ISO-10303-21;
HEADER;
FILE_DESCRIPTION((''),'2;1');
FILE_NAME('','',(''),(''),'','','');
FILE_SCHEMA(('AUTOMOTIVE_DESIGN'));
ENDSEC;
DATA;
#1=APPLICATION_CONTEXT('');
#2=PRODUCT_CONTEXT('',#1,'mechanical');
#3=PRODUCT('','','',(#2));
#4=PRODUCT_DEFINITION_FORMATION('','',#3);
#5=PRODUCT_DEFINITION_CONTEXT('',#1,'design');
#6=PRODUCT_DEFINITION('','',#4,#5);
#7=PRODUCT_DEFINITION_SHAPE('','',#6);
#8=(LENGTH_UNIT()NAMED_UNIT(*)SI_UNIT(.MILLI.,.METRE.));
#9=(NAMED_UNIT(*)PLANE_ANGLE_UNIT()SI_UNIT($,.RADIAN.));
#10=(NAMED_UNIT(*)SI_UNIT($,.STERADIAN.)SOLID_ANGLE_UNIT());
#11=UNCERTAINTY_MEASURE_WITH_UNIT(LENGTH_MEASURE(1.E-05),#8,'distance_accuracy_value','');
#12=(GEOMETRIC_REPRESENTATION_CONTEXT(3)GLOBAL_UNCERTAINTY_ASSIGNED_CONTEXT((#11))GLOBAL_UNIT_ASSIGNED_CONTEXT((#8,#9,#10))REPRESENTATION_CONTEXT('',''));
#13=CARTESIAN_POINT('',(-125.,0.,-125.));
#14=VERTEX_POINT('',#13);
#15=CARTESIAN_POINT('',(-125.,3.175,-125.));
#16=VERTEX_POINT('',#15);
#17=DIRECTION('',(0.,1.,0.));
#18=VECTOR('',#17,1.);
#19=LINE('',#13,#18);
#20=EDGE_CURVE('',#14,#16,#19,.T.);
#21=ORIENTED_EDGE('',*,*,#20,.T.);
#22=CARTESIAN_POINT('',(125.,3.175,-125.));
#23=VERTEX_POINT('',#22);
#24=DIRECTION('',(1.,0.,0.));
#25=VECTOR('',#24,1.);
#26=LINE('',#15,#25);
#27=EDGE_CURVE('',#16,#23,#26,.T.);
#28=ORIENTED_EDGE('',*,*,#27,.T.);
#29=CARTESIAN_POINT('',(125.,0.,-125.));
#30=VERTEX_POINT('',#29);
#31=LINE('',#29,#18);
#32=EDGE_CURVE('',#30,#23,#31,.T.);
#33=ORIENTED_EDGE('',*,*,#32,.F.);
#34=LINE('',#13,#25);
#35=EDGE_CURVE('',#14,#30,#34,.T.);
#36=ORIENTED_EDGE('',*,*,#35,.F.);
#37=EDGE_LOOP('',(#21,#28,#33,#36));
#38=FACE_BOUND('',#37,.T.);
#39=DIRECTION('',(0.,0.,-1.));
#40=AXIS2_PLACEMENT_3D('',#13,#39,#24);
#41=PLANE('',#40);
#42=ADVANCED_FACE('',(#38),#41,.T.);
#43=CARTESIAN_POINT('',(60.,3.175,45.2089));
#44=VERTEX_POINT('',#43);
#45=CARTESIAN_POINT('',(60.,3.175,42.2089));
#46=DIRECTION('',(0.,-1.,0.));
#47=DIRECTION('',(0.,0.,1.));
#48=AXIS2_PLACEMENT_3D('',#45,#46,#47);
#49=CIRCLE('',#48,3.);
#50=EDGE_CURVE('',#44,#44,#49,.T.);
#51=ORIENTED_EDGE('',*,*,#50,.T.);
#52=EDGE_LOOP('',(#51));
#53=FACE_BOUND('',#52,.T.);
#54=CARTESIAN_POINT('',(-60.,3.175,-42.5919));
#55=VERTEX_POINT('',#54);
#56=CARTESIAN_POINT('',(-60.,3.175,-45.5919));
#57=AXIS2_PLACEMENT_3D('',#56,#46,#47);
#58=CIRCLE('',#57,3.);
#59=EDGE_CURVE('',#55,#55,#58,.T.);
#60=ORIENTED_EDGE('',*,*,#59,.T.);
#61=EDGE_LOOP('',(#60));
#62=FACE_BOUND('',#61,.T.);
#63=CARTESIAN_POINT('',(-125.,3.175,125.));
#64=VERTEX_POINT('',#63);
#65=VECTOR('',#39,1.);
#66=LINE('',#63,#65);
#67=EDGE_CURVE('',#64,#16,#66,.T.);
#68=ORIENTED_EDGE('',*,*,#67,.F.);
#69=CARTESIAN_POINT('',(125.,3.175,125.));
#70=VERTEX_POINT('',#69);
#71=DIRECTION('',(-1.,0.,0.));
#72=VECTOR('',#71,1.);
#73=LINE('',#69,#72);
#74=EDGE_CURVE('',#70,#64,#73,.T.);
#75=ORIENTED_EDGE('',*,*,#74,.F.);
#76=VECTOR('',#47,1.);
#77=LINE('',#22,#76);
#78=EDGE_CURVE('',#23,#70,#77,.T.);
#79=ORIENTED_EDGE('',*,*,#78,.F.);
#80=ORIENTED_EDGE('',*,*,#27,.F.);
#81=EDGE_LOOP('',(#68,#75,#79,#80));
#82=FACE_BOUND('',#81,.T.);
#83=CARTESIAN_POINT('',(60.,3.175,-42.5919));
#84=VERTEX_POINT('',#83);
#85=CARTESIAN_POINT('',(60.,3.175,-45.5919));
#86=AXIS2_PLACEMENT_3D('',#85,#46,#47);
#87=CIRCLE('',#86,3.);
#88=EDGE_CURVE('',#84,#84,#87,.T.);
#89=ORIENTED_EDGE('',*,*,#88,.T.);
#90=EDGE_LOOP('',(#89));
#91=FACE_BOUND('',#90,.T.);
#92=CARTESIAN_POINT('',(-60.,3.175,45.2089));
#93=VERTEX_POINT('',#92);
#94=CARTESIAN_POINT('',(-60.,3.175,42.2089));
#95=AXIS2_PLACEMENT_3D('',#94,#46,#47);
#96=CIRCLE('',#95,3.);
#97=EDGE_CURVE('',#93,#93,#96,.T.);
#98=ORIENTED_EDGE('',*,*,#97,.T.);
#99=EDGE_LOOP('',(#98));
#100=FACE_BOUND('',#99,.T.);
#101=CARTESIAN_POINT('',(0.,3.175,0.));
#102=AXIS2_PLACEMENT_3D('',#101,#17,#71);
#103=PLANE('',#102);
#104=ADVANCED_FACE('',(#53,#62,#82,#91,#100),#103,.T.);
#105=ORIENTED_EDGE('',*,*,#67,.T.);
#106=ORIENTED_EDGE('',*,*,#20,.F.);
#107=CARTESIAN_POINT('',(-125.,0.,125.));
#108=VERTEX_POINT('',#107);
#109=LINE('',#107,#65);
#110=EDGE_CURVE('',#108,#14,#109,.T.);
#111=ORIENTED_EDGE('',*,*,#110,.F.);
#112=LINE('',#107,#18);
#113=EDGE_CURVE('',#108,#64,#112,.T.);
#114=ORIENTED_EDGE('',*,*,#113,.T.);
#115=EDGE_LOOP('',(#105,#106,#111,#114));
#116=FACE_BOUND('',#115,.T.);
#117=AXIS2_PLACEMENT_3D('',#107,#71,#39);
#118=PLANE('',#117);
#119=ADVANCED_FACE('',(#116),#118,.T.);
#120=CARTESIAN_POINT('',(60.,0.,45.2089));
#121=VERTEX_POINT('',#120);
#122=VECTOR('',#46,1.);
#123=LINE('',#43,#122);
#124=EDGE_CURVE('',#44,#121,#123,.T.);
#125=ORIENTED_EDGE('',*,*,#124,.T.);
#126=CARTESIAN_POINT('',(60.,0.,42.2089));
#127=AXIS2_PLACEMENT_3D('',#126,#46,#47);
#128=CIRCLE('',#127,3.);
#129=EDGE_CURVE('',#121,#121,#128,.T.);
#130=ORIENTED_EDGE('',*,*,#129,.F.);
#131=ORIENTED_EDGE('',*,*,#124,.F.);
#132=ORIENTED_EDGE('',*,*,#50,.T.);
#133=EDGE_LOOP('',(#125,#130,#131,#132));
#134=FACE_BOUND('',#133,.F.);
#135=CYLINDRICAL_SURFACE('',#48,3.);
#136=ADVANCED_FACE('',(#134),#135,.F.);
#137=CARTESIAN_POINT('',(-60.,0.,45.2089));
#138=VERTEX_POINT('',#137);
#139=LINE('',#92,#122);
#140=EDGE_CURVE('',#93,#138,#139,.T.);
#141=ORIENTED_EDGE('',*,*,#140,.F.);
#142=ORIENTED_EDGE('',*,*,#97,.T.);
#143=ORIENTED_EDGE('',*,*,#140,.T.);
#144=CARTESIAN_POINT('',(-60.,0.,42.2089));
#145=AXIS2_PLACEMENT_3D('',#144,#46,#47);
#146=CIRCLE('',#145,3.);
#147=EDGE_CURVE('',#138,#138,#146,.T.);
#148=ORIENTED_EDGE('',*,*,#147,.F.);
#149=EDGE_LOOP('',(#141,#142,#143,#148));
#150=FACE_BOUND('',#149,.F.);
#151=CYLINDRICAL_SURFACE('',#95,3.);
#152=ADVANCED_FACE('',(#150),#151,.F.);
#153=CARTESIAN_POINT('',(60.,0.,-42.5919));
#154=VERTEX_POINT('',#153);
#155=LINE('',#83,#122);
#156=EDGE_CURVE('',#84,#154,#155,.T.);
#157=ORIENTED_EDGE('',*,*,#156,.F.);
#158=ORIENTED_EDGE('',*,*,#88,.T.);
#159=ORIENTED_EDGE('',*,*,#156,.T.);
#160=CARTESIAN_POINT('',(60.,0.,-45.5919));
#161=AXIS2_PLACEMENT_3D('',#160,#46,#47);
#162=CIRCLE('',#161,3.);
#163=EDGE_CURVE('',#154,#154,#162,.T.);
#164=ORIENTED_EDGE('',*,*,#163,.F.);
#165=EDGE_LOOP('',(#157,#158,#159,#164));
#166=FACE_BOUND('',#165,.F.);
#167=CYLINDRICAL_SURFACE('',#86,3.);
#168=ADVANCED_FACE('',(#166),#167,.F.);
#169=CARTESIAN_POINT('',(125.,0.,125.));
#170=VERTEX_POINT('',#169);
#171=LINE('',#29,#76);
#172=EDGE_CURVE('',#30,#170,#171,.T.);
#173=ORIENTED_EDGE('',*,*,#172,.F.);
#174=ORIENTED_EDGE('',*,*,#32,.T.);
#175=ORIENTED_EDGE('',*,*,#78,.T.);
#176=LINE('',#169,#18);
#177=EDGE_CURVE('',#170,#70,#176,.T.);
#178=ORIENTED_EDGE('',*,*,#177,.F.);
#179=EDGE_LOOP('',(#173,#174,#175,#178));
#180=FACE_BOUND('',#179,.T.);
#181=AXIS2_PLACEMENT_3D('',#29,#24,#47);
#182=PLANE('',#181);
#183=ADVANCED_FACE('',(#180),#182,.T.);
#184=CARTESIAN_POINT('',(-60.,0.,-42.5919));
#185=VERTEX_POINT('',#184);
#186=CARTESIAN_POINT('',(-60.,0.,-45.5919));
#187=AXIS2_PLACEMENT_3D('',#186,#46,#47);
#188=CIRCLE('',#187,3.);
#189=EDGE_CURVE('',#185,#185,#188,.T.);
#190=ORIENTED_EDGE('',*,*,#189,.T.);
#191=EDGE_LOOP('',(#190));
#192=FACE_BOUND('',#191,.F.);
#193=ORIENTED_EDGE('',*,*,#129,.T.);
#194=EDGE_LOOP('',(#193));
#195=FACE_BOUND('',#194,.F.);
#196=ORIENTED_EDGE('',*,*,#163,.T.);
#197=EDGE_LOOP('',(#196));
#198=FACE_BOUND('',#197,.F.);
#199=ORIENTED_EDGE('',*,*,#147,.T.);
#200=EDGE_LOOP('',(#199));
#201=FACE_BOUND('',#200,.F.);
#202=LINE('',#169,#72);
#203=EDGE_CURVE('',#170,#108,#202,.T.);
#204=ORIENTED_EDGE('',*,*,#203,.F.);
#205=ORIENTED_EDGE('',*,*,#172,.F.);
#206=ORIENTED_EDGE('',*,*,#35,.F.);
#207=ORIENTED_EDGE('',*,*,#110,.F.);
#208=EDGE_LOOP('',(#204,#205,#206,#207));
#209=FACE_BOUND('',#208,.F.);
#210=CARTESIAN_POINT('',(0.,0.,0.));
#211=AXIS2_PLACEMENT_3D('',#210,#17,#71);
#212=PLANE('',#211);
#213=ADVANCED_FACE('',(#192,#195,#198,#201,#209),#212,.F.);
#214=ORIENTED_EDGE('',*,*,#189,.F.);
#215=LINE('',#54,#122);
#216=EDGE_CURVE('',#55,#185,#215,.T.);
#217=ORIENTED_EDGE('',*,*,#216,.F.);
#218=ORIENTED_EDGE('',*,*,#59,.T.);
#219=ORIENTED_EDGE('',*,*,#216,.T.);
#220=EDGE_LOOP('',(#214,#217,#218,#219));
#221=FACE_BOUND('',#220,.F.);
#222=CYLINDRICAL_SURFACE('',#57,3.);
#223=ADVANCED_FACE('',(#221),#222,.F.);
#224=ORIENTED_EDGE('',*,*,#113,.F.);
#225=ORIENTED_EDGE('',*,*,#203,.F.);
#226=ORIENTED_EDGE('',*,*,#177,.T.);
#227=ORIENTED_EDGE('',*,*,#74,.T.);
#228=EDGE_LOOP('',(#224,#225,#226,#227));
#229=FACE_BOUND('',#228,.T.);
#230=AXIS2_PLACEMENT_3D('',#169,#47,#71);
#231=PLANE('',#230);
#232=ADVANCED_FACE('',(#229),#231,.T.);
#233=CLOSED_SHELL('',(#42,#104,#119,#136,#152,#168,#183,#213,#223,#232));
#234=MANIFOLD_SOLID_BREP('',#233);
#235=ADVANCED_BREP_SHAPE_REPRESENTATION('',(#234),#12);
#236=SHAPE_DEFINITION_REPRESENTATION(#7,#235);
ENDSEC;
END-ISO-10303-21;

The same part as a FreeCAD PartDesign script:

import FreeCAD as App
import Part
import Sketcher

V = App.Vector

doc = App.newDocument("Part")
params = doc.addObject("Spreadsheet::Sheet", "Params")
for row, (alias, value) in enumerate([
    ("sketch1_width", "250 mm"),
    ("pad1_length", "3.175 mm"),
    ("sketch2_diameter", "6 mm"),
    ("hole_diameter", "6 mm"),
], start=1):
    params.set(f"A{row}", alias)
    params.set(f"B{row}", "=" + value)
    params.setAlias(f"B{row}", alias)

body = doc.addObject("PartDesign::Body", "Body")

# Sketch on XZ plane
sketch1 = doc.addObject("Sketcher::SketchObject", "Sketch")
body.addObject(sketch1)
sketch1.AttachmentSupport = (doc.XZ_Plane, [""])
sketch1.MapMode = "FlatFace"
sketch1.addGeometry([
    Part.LineSegment(V(-125, 125, 0), V(125, 125, 0)),
    Part.LineSegment(V(125, 125, 0), V(125, -125, 0)),
    Part.LineSegment(V(125, -125, 0), V(-125, -125, 0)),
    Part.LineSegment(V(-125, -125, 0), V(-125, 125, 0)),
], False)
sketch1.addConstraint([
    Sketcher.Constraint("Coincident", 0, 2, 1, 1),
    Sketcher.Constraint("Coincident", 1, 2, 2, 1),
    Sketcher.Constraint("Coincident", 2, 2, 3, 1),
    Sketcher.Constraint("Coincident", 3, 2, 0, 1),
    Sketcher.Constraint("Horizontal", 0),
    Sketcher.Constraint("Vertical", 1),
    Sketcher.Constraint("Horizontal", 2),
    Sketcher.Constraint("Vertical", 3),
    Sketcher.Constraint("Symmetric", 0, 2, 2, 2, -1, 1),
    Sketcher.Constraint("Equal", 2, 1),
    Sketcher.Constraint("DistanceX", 0, 1, 0, 2, 250.0),
])
sketch1.setExpression("Constraints[10]", "Params.sketch1_width")
pad1 = doc.addObject("PartDesign::Pad", "Pad")
body.addObject(pad1)
pad1.Profile = sketch1
pad1.setExpression("Length", "Params.pad1_length")
pad1.Reversed = True

# Sketch on XZ plane
sketch2 = doc.addObject("Sketcher::SketchObject", "Sketch001")
body.addObject(sketch2)
sketch2.AttachmentSupport = (doc.XZ_Plane, [""])
sketch2.MapMode = "FlatFace"
sketch2.AttachmentOffset = App.Placement(V(0, 0, -3.175), App.Rotation())
sketch2.addGeometry([
    Part.Circle(V(60, -45.6, 0), V(0, 0, 1), 3),
    Part.Circle(V(-60, -45.6, 0), V(0, 0, 1), 3),
    Part.Circle(V(60, 42.2, 0), V(0, 0, 1), 3),
    Part.Circle(V(-60, 42.2, 0), V(0, 0, 1), 3),
], False)
sketch2.addConstraint([
    Sketcher.Constraint("Equal", 0, 1),
    Sketcher.Constraint("Equal", 1, 2),
    Sketcher.Constraint("Equal", 2, 3),
    Sketcher.Constraint("Symmetric", 0, 3, 1, 3, -2),
    Sketcher.Constraint("Symmetric", 2, 3, 3, 3, -2),
    Sketcher.Constraint("Vertical", 0, 3, 2, 3),
    Sketcher.Constraint("Diameter", 0, 6.0),
    Sketcher.Constraint("DistanceX", -1, 1, 0, 3, 60.0),
    Sketcher.Constraint("DistanceY", 0, 3, -1, 1, 45.592),
    Sketcher.Constraint("DistanceY", -1, 1, 2, 3, 42.209),
])
sketch2.setExpression("Constraints[6]", "Params.sketch2_diameter")
doc.recompute()
hole = doc.addObject("PartDesign::Hole", "Hole")
body.addObject(hole)
hole.Profile = sketch2
hole.ThreadType = "None"
hole.setExpression("Diameter", "Params.hole_diameter")
hole.DepthType = "ThroughAll"
hole.Reversed = True

doc.recompute()
